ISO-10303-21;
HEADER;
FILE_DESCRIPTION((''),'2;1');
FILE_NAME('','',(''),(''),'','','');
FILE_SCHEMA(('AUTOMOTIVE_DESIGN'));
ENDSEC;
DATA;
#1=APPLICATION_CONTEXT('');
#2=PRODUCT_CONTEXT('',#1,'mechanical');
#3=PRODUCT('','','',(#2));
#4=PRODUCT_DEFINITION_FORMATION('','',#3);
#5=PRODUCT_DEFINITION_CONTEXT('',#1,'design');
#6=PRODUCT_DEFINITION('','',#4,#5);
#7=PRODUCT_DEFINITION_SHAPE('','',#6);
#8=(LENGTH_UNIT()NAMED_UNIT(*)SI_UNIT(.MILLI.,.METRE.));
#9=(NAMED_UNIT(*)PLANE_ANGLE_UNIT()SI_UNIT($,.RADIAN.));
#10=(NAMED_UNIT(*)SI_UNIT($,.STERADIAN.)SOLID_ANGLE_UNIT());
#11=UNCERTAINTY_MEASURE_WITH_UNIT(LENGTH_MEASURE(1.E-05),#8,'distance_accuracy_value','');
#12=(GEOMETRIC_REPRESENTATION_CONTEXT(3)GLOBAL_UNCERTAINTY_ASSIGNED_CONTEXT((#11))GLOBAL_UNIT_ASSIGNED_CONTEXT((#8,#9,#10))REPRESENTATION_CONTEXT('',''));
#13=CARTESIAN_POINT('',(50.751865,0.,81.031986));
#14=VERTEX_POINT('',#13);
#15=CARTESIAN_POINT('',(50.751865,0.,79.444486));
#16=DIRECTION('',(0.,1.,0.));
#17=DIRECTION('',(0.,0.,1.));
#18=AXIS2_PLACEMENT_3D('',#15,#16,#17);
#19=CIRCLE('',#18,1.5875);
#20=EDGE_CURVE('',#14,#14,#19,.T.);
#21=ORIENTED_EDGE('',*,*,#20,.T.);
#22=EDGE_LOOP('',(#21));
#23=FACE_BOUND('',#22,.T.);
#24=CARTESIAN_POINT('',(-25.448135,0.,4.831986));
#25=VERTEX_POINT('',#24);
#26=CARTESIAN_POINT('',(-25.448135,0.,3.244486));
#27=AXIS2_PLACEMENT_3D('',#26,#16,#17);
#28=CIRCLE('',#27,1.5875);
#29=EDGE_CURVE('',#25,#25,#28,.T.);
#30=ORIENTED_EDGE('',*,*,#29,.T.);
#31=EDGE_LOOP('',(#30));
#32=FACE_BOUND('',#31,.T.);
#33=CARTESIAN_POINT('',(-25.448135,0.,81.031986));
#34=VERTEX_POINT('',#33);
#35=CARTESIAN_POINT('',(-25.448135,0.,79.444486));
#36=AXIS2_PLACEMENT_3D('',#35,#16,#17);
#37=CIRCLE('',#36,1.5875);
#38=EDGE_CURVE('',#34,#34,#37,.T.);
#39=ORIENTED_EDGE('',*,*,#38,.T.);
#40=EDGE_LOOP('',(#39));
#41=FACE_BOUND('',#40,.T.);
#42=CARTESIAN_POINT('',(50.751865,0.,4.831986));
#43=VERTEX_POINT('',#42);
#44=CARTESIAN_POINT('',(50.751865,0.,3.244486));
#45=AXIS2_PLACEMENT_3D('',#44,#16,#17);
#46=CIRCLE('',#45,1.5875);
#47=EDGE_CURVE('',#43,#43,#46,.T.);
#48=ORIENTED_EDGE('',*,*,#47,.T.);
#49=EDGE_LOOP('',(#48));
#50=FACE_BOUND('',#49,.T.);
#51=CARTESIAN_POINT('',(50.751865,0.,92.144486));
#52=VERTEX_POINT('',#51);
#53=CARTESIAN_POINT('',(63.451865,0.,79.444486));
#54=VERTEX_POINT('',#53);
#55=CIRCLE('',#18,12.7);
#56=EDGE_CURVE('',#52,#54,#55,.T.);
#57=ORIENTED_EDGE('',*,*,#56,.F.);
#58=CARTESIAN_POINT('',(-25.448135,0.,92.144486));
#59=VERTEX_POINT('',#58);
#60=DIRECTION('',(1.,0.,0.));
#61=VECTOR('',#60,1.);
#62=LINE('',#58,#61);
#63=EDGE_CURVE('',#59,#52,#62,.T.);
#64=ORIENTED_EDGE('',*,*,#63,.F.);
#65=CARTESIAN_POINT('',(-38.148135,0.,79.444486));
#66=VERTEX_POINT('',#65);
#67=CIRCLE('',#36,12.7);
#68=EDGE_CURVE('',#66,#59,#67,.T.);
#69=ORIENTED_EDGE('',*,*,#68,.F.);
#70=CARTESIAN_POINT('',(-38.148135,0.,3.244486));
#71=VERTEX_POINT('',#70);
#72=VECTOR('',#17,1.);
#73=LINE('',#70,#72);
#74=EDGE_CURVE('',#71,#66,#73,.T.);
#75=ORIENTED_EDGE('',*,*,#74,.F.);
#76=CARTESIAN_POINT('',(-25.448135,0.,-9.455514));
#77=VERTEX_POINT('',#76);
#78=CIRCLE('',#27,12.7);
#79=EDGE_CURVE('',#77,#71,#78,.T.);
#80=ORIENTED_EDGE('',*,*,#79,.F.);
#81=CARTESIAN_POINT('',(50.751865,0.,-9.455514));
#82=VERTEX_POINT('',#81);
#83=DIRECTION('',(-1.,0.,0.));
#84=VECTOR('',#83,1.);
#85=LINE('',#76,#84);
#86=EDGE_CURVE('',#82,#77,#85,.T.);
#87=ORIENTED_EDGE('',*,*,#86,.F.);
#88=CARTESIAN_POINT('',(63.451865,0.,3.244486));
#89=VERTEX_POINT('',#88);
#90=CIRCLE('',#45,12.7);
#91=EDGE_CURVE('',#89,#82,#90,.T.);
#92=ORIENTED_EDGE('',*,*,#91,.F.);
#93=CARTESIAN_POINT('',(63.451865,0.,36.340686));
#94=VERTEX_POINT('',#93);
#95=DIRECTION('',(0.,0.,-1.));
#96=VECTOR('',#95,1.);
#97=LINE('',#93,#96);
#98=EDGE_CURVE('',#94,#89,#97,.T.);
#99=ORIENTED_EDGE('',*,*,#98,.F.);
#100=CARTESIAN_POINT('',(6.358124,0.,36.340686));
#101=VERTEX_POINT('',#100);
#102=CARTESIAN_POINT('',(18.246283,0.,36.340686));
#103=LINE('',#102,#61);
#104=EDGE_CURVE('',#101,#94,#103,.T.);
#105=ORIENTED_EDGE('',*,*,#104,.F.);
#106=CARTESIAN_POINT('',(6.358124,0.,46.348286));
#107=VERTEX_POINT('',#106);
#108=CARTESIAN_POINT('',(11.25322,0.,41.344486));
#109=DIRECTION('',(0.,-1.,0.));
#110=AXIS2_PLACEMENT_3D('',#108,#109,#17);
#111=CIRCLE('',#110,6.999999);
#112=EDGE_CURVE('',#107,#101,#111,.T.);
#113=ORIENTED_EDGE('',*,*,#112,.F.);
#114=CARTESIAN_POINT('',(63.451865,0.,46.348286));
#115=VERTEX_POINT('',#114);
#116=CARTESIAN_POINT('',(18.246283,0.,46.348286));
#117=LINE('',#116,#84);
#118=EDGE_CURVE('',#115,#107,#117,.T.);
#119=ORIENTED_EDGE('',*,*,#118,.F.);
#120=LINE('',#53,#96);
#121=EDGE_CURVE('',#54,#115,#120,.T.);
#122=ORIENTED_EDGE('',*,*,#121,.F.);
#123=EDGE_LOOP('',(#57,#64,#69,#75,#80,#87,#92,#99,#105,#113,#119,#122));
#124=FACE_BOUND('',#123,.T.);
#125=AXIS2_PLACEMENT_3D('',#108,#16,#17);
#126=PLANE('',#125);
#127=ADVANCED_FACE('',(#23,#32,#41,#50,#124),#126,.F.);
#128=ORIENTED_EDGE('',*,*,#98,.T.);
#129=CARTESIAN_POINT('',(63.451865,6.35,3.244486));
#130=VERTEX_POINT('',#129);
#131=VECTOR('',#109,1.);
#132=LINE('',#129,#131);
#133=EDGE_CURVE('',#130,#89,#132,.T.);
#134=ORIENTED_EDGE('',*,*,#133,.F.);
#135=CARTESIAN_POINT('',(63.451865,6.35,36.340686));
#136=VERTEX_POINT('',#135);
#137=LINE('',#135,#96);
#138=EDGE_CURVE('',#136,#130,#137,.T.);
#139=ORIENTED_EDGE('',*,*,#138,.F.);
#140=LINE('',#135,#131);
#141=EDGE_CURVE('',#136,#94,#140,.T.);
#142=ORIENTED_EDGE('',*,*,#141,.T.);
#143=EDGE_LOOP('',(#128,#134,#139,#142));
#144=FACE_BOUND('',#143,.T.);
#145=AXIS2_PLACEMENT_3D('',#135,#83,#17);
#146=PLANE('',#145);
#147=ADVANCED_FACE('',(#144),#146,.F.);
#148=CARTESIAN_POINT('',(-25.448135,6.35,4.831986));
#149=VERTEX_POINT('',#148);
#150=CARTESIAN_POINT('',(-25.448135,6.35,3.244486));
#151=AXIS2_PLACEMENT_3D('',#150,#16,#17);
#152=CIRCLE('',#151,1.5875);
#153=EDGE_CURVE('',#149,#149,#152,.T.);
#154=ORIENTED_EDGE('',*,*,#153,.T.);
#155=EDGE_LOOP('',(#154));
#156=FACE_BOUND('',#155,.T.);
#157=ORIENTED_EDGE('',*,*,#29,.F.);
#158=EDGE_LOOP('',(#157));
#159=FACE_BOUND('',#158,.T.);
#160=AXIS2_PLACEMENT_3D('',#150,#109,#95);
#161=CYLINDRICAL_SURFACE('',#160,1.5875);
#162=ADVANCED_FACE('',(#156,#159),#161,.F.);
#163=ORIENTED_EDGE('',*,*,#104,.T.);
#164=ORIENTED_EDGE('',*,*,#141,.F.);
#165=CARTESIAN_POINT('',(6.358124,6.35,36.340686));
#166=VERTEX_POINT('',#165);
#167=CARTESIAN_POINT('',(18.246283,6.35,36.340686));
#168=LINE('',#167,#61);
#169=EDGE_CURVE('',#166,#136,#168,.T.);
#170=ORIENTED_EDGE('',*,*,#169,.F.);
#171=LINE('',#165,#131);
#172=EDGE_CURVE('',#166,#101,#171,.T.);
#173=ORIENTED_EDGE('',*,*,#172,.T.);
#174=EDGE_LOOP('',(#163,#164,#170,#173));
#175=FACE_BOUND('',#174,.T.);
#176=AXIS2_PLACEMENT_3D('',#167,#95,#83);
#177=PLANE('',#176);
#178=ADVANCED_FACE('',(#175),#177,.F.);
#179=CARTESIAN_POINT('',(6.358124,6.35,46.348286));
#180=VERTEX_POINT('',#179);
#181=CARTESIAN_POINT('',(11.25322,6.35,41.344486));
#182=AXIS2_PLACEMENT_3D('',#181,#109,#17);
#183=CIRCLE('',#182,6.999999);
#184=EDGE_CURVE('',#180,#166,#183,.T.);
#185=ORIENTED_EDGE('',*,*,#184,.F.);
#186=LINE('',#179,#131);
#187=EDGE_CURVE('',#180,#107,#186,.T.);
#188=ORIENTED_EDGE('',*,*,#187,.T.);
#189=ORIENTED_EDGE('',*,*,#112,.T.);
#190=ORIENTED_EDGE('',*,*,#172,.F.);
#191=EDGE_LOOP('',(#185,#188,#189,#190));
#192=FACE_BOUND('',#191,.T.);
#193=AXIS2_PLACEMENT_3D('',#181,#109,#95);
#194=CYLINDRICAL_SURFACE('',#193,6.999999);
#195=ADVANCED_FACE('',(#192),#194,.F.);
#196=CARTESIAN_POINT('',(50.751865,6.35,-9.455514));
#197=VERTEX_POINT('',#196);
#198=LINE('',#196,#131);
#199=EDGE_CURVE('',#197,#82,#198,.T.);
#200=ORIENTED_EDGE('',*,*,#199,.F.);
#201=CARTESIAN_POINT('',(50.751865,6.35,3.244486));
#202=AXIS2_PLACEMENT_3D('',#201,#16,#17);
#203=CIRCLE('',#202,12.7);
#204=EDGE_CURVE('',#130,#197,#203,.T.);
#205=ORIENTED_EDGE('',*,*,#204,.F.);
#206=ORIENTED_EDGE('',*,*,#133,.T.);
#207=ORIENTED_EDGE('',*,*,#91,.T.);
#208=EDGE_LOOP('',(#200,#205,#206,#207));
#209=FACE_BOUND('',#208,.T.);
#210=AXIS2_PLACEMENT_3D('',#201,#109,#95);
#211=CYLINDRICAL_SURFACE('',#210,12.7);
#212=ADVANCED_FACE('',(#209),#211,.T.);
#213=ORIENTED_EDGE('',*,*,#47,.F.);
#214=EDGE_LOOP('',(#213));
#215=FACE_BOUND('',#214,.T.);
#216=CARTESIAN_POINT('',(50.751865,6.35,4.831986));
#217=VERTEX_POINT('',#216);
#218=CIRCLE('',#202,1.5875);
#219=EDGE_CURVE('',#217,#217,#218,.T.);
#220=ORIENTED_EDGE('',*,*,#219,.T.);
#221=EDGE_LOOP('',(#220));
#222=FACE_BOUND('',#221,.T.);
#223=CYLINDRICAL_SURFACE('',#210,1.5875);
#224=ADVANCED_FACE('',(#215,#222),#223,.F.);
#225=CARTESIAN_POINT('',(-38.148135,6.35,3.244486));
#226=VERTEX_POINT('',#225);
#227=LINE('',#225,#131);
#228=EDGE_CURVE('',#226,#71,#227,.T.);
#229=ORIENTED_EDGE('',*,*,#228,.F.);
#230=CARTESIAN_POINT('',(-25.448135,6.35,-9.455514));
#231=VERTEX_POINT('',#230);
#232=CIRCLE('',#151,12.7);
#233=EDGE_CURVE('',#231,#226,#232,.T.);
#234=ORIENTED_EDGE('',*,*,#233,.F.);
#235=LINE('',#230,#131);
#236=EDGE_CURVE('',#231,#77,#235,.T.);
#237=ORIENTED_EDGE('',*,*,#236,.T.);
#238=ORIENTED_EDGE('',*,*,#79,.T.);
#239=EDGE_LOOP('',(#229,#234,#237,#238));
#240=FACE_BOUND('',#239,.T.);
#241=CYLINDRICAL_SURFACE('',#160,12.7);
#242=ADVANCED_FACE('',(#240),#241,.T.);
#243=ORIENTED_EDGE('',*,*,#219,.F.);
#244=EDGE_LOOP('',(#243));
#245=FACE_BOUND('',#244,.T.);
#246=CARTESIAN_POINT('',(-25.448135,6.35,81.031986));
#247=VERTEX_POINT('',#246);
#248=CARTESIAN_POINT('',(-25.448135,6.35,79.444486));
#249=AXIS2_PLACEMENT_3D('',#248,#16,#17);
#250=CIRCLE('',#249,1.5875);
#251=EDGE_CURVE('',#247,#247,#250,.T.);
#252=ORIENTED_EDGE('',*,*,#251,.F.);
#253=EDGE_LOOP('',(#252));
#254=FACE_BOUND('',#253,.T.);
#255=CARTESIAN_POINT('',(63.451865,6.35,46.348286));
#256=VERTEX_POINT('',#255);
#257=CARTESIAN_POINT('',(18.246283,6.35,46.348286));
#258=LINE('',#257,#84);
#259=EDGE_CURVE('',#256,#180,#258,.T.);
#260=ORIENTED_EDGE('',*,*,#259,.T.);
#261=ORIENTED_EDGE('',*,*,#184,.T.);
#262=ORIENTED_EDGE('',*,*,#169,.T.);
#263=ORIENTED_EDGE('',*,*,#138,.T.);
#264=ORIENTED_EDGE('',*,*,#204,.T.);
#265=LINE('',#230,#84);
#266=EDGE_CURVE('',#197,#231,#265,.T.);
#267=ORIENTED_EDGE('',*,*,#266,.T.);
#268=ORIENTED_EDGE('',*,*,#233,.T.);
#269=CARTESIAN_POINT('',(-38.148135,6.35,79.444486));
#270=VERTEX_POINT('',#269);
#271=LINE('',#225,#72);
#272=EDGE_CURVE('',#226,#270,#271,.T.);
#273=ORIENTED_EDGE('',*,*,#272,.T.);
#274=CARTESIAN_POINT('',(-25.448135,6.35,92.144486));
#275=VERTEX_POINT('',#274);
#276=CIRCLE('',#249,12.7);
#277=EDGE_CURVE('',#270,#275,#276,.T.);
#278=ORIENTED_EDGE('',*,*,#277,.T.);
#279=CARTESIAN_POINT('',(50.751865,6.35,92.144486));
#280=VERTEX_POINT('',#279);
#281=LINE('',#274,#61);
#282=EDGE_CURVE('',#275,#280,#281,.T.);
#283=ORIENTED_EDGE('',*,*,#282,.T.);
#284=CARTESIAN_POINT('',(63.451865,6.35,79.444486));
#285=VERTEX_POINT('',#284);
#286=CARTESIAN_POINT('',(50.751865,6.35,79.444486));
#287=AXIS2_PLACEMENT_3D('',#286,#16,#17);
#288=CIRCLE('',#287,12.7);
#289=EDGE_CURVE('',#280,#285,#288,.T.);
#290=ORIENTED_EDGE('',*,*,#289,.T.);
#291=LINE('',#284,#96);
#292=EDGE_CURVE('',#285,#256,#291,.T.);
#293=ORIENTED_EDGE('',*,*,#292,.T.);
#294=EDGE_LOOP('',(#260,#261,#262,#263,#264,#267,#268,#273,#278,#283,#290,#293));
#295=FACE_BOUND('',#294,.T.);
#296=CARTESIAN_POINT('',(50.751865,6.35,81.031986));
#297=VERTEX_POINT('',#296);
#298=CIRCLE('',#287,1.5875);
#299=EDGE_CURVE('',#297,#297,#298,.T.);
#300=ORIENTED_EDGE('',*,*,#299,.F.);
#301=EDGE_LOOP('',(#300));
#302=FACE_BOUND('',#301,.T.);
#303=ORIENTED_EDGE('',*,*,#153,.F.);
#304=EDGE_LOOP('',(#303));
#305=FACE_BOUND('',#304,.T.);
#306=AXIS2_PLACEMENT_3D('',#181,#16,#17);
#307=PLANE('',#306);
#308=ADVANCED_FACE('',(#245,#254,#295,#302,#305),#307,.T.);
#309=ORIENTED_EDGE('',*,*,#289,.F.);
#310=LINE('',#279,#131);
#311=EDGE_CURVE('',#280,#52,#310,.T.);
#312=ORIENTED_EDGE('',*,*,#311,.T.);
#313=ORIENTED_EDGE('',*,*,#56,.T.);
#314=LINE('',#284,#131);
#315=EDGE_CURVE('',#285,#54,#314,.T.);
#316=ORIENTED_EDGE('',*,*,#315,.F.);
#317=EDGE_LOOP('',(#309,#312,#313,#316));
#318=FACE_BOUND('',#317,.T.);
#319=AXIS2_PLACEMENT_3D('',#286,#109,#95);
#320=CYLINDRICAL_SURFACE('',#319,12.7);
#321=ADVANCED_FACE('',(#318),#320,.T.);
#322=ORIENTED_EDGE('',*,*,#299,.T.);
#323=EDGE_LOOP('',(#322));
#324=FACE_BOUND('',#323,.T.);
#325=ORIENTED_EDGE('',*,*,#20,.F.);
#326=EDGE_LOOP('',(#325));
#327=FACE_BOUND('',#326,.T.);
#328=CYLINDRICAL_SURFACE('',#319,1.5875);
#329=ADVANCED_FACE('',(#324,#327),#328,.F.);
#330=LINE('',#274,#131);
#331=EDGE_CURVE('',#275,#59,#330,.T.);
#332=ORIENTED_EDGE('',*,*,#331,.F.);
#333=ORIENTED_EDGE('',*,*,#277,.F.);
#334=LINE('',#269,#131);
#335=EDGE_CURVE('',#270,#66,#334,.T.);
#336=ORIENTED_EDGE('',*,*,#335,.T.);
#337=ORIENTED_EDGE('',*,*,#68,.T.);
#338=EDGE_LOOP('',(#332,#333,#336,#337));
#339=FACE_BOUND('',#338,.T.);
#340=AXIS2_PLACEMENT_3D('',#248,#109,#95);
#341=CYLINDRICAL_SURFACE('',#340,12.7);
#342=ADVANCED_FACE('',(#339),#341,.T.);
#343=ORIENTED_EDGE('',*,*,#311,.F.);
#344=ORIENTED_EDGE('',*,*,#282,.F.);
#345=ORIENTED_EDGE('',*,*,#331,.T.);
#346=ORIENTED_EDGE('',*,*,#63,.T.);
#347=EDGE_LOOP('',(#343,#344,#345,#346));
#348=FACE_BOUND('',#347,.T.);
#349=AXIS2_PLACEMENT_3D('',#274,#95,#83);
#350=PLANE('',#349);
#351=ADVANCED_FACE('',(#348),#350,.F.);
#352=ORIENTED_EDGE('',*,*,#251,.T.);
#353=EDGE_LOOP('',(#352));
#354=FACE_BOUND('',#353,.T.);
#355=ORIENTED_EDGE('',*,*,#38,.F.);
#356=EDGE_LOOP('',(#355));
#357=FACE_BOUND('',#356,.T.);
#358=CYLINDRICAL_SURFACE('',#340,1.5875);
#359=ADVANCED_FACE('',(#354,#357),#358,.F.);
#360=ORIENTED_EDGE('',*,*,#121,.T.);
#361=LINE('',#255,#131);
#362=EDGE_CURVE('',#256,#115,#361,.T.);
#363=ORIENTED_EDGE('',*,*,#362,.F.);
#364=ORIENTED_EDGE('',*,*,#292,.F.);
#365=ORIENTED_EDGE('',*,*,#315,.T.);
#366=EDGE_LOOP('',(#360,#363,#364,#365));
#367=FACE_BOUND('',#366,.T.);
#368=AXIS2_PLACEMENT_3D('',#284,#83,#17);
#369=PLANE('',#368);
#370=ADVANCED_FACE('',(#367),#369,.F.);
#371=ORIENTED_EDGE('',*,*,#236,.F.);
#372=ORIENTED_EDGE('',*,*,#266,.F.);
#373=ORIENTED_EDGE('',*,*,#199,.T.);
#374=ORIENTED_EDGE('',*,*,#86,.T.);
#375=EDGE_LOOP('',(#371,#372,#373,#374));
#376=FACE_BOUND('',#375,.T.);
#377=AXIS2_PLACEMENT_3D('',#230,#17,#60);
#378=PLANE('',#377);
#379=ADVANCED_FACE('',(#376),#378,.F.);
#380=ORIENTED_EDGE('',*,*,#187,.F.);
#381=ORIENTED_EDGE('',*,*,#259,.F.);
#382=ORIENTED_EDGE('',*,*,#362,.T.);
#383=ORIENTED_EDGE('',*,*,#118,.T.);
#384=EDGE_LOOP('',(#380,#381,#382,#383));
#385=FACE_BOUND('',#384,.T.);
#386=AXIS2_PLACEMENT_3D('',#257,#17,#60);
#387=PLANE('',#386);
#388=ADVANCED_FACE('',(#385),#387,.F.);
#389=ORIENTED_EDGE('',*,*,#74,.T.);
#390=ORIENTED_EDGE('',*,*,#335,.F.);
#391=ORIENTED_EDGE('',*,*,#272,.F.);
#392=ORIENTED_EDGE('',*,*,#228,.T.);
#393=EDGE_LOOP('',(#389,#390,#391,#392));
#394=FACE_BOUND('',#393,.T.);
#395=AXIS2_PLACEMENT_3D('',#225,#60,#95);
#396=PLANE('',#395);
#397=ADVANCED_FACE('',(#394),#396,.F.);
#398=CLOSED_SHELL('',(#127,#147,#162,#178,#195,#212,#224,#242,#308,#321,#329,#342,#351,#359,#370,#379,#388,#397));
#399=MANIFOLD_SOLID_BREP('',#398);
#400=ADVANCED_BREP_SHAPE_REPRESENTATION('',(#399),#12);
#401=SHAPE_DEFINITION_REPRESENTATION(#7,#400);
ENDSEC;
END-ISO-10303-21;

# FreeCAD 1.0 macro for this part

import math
import FreeCAD as App
import Part
import Sketcher

V = App.Vector
Q = App.Units.Quantity

doc = App.newDocument("Part")
params = doc.addObject("Spreadsheet::Sheet", "Params")
for row, (alias, value) in enumerate([
    ("sketch1_radius", "0.5 in"),
    ("sketch1_width", "3 in"),
    ("sketch1_diameter", "0.125 in"),
    ("sketch1_height", "1.303 in"),
    ("pad1_length", "0.25 in"),
], start=1):
    params.set(f"A{row}", alias)
    params.set(f"B{row}", "=" + value)
    params.setAlias(f"B{row}", alias)

body = doc.addObject("PartDesign::Body", "Body")

# Sketch on XZ plane
sketch1 = body.newObject("Sketcher::SketchObject", "Sketch")
sketch1.AttachmentSupport = (doc.getObject("XZ_Plane"), [""])
sketch1.MapMode = "FlatFace"
sketch1.addGeometry(Part.LineSegment(V(63.5, 36.3, 0), V(63.5, 3.2, 0)), False)
sketch1.addGeometry(Part.ArcOfCircle(Part.Circle(V(50.8, 3.2, 0), V(0, 0, 1), 12.7), math.radians(-90), math.radians(0)), False)
sketch1.addGeometry(Part.LineSegment(V(50.8, -9.5, 0), V(-25.4, -9.5, 0)), False)
sketch1.addGeometry(Part.ArcOfCircle(Part.Circle(V(-25.4, 3.2, 0), V(0, 0, 1), 12.7), math.radians(180), math.radians(270)), False)
sketch1.addGeometry(Part.LineSegment(V(-38.1, 3.2, 0), V(-38.1, 79.4, 0)), False)
sketch1.addGeometry(Part.ArcOfCircle(Part.Circle(V(-25.4, 79.4, 0), V(0, 0, 1), 12.7), math.radians(90), math.radians(180)), False)
sketch1.addGeometry(Part.LineSegment(V(-25.4, 92.1, 0), V(50.8, 92.1, 0)), False)
sketch1.addGeometry(Part.ArcOfCircle(Part.Circle(V(50.8, 79.4, 0), V(0, 0, 1), 12.7), math.radians(0), math.radians(90)), False)
sketch1.addGeometry(Part.LineSegment(V(63.5, 79.4, 0), V(63.5, 46.3, 0)), False)
sketch1.addGeometry(Part.LineSegment(V(63.5, 46.3, 0), V(6.4, 46.3, 0)), False)
sketch1.addGeometry(Part.ArcOfCircle(Part.Circle(V(11.3, 41.3, 0), V(0, 0, 1), 7), math.radians(134), math.radians(226)), False)
sketch1.addGeometry(Part.LineSegment(V(6.4, 36.3, 0), V(63.5, 36.3, 0)), False)
sketch1.addGeometry(Part.Circle(V(-25.4, 79.4, 0), V(0, 0, 1), 1.6), False)
sketch1.addGeometry(Part.Circle(V(50.8, 79.4, 0), V(0, 0, 1), 1.6), False)
sketch1.addGeometry(Part.Circle(V(-25.4, 3.2, 0), V(0, 0, 1), 1.6), False)
sketch1.addGeometry(Part.Circle(V(50.8, 3.2, 0), V(0, 0, 1), 1.6), False)
sketch1.addConstraint(Sketcher.Constraint("Tangent", 0, 2, 1, 2))
sketch1.addConstraint(Sketcher.Constraint("Tangent", 1, 1, 2, 1))
sketch1.addConstraint(Sketcher.Constraint("Tangent", 2, 2, 3, 2))
sketch1.addConstraint(Sketcher.Constraint("Tangent", 3, 1, 4, 1))
sketch1.addConstraint(Sketcher.Constraint("Tangent", 4, 2, 5, 2))
sketch1.addConstraint(Sketcher.Constraint("Tangent", 5, 1, 6, 1))
sketch1.addConstraint(Sketcher.Constraint("Tangent", 6, 2, 7, 2))
sketch1.addConstraint(Sketcher.Constraint("Tangent", 7, 1, 8, 1))
sketch1.addConstraint(Sketcher.Constraint("Coincident", 8, 2, 9, 1))
sketch1.addConstraint(Sketcher.Constraint("Coincident", 9, 2, 10, 1))
sketch1.addConstraint(Sketcher.Constraint("Coincident", 10, 2, 11, 1))
sketch1.addConstraint(Sketcher.Constraint("Coincident", 11, 2, 0, 1))
sketch1.addConstraint(Sketcher.Constraint("Vertical", 0))
sketch1.addConstraint(Sketcher.Constraint("Horizontal", 2))
sketch1.addConstraint(Sketcher.Constraint("Vertical", 4))
sketch1.addConstraint(Sketcher.Constraint("Horizontal", 6))
sketch1.addConstraint(Sketcher.Constraint("Vertical", 8))
sketch1.addConstraint(Sketcher.Constraint("Horizontal", 9))
sketch1.addConstraint(Sketcher.Constraint("Horizontal", 11))
sketch1.addConstraint(Sketcher.Constraint("Coincident", 12, 3, 5, 3))
sketch1.addConstraint(Sketcher.Constraint("Coincident", 13, 3, 7, 3))
sketch1.addConstraint(Sketcher.Constraint("Coincident", 14, 3, 3, 3))
sketch1.addConstraint(Sketcher.Constraint("Coincident", 15, 3, 1, 3))
sketch1.addConstraint(Sketcher.Constraint("Equal", 1, 3))
sketch1.addConstraint(Sketcher.Constraint("Equal", 3, 5))
sketch1.addConstraint(Sketcher.Constraint("Equal", 5, 7))
sketch1.addConstraint(Sketcher.Constraint("Equal", 12, 13))
sketch1.addConstraint(Sketcher.Constraint("Equal", 13, 14))
sketch1.addConstraint(Sketcher.Constraint("Equal", 14, 15))
sketch1.addConstraint(Sketcher.Constraint("Vertical", 1, 3, 7, 3))
sketch1.addConstraint(Sketcher.Constraint("Vertical", 9, 2, 10, 2))
sketch1.addConstraint(Sketcher.Constraint("Equal", 6, 4))
sketch1.addConstraint(Sketcher.Constraint("Equal", 0, 8))
sketch1.addConstraint(Sketcher.Constraint("Radius", 1, Q("0.5 in")))
sketch1.addConstraint(Sketcher.Constraint("DistanceX", 2, 2, 2, 1, Q("3 in")))
sketch1.addConstraint(Sketcher.Constraint("Diameter", 12, Q("0.125 in")))
sketch1.addConstraint(Sketcher.Constraint("DistanceY", 0, 2, 0, 1, Q("1.303 in")))
sketch1.addConstraint(Sketcher.Constraint("Radius", 10, Q("6.999999 mm")))
sketch1.addConstraint(Sketcher.Constraint("DistanceX", 9, 2, 9, 1, Q("57.093741 mm")))
sketch1.addConstraint(Sketcher.Constraint("DistanceX", -1, 1, 10, 3, Q("11.25322 mm")))
sketch1.addConstraint(Sketcher.Constraint("DistanceY", -1, 1, 1, 3, Q("3.244486 mm")))
sketch1.setExpression("Constraints[33]", "Params.sketch1_radius")
sketch1.setExpression("Constraints[34]", "Params.sketch1_width")
sketch1.setExpression("Constraints[35]", "Params.sketch1_diameter")
sketch1.setExpression("Constraints[36]", "Params.sketch1_height")
pad1 = body.newObject("PartDesign::Pad", "Pad")
pad1.Profile = sketch1
pad1.setExpression("Length", "Params.pad1_length")
pad1.Reversed = True

doc.recompute()
